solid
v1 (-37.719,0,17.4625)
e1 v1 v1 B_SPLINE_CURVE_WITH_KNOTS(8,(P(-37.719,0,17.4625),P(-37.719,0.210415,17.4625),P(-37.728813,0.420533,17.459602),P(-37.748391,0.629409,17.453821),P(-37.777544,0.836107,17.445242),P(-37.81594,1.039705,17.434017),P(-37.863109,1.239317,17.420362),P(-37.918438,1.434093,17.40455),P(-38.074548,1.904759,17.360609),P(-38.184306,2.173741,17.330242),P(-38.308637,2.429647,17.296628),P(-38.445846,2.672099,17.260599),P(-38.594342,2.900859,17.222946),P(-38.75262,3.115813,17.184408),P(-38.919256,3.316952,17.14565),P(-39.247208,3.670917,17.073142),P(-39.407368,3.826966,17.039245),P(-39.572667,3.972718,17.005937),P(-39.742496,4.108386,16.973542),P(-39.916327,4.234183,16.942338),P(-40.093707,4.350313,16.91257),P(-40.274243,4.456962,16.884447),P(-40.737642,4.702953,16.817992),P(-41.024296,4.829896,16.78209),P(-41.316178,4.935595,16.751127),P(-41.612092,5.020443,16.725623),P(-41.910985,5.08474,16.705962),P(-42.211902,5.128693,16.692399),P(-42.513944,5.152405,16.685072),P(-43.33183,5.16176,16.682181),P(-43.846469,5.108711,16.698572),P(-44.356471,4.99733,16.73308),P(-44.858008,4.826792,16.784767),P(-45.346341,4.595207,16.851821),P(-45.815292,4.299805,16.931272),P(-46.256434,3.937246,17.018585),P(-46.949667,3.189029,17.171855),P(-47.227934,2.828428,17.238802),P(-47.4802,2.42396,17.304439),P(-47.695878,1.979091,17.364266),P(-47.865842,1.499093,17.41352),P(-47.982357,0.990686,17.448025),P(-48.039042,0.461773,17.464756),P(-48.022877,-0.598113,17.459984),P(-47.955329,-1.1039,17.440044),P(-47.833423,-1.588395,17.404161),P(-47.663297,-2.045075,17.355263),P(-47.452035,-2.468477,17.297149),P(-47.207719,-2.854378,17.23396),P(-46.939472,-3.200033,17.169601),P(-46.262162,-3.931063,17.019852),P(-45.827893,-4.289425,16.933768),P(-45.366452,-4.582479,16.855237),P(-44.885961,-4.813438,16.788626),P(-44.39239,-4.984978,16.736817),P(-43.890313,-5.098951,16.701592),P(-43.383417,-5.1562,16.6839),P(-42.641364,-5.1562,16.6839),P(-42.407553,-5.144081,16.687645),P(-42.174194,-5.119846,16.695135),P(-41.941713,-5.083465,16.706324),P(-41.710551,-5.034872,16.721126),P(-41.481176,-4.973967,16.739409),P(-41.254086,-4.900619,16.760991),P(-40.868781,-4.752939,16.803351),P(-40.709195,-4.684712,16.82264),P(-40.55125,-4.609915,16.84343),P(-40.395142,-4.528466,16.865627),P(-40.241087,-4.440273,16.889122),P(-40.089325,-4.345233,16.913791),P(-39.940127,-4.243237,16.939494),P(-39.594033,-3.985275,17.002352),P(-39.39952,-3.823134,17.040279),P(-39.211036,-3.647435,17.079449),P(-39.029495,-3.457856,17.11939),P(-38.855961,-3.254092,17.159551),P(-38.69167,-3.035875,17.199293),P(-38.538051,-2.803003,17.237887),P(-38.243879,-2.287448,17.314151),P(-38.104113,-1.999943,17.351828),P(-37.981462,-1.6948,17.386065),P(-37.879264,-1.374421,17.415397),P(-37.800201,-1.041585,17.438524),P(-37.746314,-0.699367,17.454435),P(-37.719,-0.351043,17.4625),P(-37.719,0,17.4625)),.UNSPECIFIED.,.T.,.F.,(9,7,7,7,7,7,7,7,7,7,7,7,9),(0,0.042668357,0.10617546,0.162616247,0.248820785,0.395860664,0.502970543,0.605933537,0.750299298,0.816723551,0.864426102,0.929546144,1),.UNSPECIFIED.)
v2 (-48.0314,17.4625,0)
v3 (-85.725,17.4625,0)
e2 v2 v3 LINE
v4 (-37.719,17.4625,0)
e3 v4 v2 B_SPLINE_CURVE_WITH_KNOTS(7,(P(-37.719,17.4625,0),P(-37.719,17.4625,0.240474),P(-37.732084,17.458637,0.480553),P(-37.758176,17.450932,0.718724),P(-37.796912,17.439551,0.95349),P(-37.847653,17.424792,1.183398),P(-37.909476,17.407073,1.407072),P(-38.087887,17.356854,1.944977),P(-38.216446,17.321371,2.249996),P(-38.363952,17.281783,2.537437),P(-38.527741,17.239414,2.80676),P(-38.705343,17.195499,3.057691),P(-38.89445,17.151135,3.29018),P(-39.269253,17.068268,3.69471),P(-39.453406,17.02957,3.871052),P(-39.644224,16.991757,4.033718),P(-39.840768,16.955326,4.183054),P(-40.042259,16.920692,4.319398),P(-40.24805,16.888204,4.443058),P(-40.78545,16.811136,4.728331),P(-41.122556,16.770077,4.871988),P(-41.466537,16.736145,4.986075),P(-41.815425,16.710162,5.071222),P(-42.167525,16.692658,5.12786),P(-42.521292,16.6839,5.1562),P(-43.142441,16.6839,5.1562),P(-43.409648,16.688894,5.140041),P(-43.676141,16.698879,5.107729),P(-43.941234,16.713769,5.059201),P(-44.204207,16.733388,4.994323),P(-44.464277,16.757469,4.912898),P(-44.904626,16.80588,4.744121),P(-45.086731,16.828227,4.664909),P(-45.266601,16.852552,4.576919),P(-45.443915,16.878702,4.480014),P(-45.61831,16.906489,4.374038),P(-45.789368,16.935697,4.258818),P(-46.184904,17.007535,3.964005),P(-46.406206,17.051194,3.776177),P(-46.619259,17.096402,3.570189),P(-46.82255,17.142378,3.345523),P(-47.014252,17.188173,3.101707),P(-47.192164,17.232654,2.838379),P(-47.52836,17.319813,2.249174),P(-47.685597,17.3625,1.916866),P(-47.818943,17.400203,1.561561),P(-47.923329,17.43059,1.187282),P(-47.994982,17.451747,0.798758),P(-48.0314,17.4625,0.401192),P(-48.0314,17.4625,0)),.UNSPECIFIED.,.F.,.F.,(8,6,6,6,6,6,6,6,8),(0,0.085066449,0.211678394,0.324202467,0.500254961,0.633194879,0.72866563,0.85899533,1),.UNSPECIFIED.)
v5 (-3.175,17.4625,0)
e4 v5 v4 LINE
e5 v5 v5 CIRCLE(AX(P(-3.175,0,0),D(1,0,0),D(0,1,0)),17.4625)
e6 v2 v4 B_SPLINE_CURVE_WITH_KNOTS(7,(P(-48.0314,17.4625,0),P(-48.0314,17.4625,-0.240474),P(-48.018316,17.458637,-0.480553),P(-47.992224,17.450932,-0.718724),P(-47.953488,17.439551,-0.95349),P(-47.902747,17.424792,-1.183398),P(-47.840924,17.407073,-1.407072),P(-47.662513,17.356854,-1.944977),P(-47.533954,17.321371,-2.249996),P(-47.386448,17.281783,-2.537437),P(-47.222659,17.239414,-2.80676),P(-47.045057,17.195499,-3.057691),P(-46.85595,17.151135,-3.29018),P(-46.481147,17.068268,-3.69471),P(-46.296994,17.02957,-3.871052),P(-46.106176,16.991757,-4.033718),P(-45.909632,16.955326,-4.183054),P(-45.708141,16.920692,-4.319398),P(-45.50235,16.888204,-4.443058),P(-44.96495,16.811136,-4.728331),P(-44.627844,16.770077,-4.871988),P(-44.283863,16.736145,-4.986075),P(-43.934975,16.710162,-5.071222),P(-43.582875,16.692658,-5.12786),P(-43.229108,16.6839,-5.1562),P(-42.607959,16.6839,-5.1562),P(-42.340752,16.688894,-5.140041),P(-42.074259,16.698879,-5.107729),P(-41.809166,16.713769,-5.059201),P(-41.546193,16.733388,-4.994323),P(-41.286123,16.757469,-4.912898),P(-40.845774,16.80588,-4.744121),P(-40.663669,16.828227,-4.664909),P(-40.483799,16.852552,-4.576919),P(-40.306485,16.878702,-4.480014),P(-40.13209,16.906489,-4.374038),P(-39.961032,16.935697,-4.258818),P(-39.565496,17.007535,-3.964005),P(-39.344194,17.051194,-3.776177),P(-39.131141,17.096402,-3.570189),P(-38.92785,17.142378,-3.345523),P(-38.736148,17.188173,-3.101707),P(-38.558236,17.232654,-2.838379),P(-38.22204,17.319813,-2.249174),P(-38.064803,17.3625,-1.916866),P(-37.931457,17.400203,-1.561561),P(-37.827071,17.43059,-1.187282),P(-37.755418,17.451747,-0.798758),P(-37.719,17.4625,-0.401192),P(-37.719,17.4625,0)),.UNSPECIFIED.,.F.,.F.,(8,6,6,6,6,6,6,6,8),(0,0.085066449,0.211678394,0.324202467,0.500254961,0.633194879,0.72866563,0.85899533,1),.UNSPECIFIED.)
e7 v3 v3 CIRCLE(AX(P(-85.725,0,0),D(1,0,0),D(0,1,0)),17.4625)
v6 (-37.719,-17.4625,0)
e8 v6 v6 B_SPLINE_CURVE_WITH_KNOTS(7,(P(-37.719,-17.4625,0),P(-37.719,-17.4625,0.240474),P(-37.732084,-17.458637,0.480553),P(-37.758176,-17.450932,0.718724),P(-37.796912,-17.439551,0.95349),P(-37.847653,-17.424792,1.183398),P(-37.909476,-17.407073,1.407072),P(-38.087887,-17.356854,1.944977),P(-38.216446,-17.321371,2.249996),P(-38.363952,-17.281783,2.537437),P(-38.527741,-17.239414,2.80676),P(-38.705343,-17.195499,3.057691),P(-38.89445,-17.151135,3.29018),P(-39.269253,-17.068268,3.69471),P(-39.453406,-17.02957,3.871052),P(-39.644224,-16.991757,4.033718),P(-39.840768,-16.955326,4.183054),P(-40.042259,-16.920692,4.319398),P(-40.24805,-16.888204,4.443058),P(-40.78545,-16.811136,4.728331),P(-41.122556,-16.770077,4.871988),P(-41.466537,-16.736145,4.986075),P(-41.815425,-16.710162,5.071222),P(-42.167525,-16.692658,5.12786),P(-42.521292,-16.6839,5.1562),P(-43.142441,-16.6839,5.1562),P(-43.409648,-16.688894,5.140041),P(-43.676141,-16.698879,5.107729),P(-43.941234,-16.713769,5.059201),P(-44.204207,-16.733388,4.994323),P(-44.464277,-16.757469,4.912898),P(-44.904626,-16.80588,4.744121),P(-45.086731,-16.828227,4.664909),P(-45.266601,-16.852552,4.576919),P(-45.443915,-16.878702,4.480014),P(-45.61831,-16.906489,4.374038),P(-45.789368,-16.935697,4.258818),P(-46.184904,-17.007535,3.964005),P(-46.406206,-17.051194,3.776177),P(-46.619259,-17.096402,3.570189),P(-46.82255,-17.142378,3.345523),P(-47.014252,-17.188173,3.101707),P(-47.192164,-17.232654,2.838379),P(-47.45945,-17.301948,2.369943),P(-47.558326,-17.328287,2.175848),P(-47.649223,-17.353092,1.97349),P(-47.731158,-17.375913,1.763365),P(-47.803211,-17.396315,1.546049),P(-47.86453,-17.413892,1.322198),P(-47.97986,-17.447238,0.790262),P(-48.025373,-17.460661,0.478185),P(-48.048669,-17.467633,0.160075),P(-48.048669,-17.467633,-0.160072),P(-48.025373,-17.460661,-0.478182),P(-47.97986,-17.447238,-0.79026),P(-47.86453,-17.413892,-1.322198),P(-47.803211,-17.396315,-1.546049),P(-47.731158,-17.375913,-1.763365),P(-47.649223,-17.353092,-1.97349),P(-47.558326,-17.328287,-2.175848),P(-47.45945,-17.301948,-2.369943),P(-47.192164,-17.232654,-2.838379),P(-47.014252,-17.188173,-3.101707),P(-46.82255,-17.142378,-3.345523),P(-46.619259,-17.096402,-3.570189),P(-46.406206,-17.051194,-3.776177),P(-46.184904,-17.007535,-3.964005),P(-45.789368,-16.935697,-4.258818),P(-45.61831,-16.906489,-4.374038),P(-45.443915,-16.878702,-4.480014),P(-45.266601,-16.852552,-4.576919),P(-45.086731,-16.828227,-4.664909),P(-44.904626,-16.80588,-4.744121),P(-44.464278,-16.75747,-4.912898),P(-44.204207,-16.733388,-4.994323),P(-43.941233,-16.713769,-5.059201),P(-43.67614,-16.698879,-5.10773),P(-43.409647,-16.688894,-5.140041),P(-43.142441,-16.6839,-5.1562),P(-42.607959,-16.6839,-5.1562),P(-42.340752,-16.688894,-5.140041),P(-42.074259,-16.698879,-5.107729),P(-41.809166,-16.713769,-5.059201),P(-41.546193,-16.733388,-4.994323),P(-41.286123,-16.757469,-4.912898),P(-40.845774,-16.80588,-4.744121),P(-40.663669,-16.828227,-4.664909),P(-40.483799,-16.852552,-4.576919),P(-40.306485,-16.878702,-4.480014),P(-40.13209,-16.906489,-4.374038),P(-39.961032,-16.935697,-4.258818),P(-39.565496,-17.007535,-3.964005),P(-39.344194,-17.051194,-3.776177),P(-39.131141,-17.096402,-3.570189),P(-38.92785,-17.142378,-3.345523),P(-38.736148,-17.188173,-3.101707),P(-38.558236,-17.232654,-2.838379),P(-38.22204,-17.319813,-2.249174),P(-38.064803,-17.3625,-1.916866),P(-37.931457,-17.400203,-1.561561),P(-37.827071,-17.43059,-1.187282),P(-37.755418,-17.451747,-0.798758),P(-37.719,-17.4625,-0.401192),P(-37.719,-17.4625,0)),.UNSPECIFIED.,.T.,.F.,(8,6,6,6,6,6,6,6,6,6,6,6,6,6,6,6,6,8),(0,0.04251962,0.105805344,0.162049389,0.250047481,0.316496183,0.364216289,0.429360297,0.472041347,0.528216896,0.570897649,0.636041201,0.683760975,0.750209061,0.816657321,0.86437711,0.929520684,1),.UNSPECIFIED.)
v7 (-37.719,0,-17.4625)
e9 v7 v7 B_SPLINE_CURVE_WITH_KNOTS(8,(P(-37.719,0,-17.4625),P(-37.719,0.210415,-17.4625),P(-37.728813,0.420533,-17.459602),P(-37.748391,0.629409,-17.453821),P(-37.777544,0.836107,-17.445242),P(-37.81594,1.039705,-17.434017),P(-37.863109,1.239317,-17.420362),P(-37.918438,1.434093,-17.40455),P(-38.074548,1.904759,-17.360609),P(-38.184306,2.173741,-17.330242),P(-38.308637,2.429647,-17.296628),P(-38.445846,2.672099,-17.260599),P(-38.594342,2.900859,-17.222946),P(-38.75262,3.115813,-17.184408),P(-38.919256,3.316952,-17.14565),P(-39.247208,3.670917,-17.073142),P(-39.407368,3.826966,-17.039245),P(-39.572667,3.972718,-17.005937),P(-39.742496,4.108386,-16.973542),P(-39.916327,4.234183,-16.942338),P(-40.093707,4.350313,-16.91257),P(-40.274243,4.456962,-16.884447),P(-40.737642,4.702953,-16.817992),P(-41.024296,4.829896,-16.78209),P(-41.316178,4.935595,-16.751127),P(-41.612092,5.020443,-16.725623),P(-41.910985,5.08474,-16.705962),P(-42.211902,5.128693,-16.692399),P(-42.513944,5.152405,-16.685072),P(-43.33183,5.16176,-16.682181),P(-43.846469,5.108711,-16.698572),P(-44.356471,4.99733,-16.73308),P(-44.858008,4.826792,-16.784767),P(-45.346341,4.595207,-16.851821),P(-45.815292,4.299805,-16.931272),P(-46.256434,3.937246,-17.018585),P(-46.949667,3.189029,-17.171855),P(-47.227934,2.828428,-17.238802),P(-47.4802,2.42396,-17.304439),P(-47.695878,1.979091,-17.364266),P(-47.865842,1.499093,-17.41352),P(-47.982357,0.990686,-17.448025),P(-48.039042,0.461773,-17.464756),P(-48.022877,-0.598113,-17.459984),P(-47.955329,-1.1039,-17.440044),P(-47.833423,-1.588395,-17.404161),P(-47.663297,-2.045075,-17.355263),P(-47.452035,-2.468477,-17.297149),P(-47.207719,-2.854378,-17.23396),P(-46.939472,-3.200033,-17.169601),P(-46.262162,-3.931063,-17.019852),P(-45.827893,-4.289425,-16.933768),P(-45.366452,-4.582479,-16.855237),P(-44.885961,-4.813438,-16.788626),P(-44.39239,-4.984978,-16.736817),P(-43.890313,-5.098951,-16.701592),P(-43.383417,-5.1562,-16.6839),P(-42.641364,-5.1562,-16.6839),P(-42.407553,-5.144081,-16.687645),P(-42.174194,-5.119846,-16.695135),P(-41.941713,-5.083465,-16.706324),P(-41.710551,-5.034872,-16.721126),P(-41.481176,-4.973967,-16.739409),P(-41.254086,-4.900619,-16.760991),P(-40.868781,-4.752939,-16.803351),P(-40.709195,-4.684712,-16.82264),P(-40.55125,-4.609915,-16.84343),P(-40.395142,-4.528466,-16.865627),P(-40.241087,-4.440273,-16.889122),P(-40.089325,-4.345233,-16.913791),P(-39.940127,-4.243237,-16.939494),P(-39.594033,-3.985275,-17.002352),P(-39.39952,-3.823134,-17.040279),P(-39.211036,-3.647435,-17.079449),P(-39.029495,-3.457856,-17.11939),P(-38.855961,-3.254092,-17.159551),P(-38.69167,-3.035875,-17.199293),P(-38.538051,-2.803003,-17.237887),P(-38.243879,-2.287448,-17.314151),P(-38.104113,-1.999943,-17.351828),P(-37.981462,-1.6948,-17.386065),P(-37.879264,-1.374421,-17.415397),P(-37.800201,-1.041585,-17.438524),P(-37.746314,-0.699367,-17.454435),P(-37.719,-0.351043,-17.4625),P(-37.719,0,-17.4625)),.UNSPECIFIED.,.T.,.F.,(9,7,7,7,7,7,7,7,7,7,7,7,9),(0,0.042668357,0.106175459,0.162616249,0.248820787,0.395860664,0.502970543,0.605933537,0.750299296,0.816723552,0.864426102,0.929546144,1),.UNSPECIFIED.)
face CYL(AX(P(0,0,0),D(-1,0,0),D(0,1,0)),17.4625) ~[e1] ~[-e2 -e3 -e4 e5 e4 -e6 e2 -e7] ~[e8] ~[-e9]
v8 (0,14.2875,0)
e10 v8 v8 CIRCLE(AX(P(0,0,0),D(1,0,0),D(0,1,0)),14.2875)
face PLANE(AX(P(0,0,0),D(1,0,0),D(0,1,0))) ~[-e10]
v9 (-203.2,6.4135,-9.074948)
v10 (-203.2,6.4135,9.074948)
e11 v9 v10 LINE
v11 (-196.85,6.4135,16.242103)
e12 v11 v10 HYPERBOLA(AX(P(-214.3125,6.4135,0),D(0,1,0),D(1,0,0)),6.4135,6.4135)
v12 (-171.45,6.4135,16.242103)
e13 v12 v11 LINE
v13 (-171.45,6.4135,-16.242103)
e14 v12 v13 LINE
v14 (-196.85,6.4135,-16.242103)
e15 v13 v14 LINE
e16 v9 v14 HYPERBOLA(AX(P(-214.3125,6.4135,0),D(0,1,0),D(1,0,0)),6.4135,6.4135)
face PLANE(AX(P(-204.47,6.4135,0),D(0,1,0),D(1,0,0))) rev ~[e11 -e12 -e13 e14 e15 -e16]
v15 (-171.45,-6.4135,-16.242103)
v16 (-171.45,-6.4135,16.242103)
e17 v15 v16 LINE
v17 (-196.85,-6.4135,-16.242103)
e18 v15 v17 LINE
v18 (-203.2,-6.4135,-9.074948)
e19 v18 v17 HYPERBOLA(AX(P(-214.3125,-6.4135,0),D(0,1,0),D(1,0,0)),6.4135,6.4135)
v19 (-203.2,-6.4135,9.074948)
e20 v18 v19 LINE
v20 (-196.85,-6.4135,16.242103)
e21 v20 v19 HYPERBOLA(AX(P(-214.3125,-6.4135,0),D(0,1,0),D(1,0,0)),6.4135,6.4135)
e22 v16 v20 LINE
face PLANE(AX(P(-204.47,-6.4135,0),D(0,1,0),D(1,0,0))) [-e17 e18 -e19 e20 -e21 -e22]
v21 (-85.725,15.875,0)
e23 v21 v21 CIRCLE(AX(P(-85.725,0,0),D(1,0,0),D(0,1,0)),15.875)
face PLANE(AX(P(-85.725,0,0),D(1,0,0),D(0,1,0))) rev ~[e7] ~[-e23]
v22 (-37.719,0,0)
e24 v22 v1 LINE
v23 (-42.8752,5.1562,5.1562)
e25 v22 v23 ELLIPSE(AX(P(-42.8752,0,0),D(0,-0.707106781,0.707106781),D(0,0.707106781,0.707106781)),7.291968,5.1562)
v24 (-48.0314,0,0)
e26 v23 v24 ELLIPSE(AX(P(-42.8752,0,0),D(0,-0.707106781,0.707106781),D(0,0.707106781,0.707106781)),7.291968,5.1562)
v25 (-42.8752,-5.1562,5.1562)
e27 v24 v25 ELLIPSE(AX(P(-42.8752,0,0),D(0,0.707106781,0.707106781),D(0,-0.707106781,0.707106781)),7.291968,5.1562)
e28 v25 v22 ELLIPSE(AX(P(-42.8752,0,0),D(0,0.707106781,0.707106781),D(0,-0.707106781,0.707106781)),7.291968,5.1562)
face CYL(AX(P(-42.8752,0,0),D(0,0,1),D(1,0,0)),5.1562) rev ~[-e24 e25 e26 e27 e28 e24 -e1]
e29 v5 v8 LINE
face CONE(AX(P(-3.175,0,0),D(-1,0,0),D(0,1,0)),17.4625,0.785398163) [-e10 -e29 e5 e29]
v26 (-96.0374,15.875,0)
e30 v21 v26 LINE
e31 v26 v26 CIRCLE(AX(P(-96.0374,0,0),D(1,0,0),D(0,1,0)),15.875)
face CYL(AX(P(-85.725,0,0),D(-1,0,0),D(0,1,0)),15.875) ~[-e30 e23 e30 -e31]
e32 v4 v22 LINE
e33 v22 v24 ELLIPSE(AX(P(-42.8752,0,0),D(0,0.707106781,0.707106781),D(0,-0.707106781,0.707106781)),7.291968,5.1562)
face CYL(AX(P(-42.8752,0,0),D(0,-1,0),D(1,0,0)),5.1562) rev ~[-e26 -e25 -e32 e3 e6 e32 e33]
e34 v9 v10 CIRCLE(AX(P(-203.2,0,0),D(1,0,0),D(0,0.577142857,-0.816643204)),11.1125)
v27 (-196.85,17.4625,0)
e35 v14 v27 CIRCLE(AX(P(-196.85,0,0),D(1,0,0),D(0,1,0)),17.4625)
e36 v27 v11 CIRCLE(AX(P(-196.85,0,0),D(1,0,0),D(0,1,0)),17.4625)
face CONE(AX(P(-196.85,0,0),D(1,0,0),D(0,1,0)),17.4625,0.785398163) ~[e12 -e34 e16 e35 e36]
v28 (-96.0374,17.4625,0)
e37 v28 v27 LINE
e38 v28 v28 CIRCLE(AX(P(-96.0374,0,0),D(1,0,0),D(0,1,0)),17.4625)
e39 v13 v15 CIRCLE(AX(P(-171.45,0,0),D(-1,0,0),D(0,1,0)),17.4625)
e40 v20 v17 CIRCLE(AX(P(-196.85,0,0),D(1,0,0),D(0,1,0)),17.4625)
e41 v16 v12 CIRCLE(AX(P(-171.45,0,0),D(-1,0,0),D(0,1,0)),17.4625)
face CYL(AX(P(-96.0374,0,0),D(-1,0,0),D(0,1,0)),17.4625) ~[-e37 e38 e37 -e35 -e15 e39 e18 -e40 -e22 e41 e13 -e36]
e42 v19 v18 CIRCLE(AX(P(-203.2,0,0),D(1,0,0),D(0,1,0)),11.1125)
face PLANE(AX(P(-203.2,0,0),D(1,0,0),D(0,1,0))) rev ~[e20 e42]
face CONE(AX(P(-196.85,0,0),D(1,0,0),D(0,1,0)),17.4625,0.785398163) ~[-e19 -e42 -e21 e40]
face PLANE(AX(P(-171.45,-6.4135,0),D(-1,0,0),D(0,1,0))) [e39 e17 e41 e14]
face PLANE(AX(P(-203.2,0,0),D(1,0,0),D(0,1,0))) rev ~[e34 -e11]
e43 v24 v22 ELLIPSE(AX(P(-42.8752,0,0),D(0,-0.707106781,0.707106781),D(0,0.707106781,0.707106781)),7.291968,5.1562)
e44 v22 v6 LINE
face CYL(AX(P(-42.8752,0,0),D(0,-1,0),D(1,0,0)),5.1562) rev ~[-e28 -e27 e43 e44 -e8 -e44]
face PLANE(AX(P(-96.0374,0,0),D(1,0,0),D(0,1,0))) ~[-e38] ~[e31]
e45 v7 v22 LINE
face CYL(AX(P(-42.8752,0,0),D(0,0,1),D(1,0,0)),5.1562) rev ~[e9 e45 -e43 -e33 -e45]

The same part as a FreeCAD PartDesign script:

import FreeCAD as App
import Part
import Sketcher
from FreeCAD import Vector
Q = App.Units.Quantity


def edges_at(feature, points):
    """Names of the edges that pass closest to the given points."""
    edges = feature.Shape.Edges
    near = lambda p: min(range(len(edges)), key=lambda i: edges[i].distToShape(Part.Vertex(*p))[0])
    return sorted({f"Edge{near(p) + 1}" for p in points})


def add_polygon(sketch, points):
    """Adds a closed chain of lines whose ends are joined by coincident constraints."""
    first, n = sketch.GeometryCount, len(points)
    for a, b in zip(points, points[1:] + points[:1]):
        sketch.addGeometry(Part.LineSegment(App.Vector(*a, 0), App.Vector(*b, 0)), False)
    for i in range(n):
        sketch.addConstraint(Sketcher.Constraint("Coincident", first + i, 2, first + (i + 1) % n, 1))

doc = App.newDocument("Part")
params = doc.addObject("Spreadsheet::Sheet", "Params")
for row, (alias, value) in enumerate([
    ("sketch1_width", "8 in"),
    ("sketch1_width2", "3.375 in"),
    ("sketch1_width3", "0.406 in"),
    ("sketch1_height", "0.6875 in"),
    ("sketch1_height2", "0.0625 in"),
    ("revolution_angle", "360 deg"),
    ("chamfer_size", "0.25 in"),
    ("chamfer2_size", "0.125 in"),
    ("sketch2_diameter", "0.406 in"),
    ("sketch2_width", "1.3 in"),
    ("sketch2_height", "0.505 in"),
    ("pocket1_length", "1.5 in"),
    ("sketch3_diameter", "0.406 in"),
    ("pocket2_length", "1.5 in"),
], start=1):
    params.set(f"A{row}", alias)
    params.set(f"B{row}", "=" + value)
    params.setAlias(f"B{row}", alias)

body = doc.addObject("PartDesign::Body", "Body")

# Sketch on XY plane
sketch1 = body.newObject("Sketcher::SketchObject", "Sketch")
sketch1.AttachmentSupport = (doc.getObject("XY_Plane"), [""])
sketch1.MapMode = "FlatFace"
add_polygon(sketch1, [(-203.2, 0), (0, 0), (0, 17.5), (-85.7, 17.5), (-85.7, 15.9), (-96, 15.9), (-96, 17.5), (-203.2, 17.5)])  # lines 0-7
sketch1.addConstraint(Sketcher.Constraint("Horizontal", 0))
sketch1.addConstraint(Sketcher.Constraint("Vertical", 1))
sketch1.addConstraint(Sketcher.Constraint("Horizontal", 2))
sketch1.addConstraint(Sketcher.Constraint("Vertical", 3))
sketch1.addConstraint(Sketcher.Constraint("Horizontal", 4))
sketch1.addConstraint(Sketcher.Constraint("Vertical", 5))
sketch1.addConstraint(Sketcher.Constraint("Horizontal", 6))
sketch1.addConstraint(Sketcher.Constraint("Vertical", 7))
sketch1.addConstraint(Sketcher.Constraint("Coincident", 0, 2, -1, 1))
sketch1.addConstraint(Sketcher.Constraint("Horizontal", 2, 2, 5, 2))
sketch1.addConstraint(Sketcher.Constraint("DistanceX", 0, 1, 0, 2, Q("8 in")))
sketch1.addConstraint(Sketcher.Constraint("DistanceX", 2, 2, 2, 1, Q("3.375 in")))
sketch1.addConstraint(Sketcher.Constraint("DistanceX", 4, 2, 4, 1, Q("0.406 in")))
sketch1.addConstraint(Sketcher.Constraint("DistanceY", 1, 1, 1, 2, Q("0.6875 in")))
sketch1.addConstraint(Sketcher.Constraint("DistanceY", 3, 2, 3, 1, Q("0.0625 in")))
sketch1.setExpression("Constraints[18]", "Params.sketch1_width")
sketch1.setExpression("Constraints[19]", "Params.sketch1_width2")
sketch1.setExpression("Constraints[20]", "Params.sketch1_width3")
sketch1.setExpression("Constraints[21]", "Params.sketch1_height")
sketch1.setExpression("Constraints[22]", "Params.sketch1_height2")
revolution = body.newObject("PartDesign::Revolution", "Revolution")
revolution.Profile = sketch1
revolution.ReferenceAxis = (sketch1, ["H_Axis"])
revolution.setExpression("Angle", "Params.revolution_angle")
doc.recompute()

chamfer = body.newObject("PartDesign::Chamfer", "Chamfer")
chamfer.Base = (revolution, edges_at(revolution, [(-203.2, -17.462, 0)]))
chamfer.setExpression("Size", "Params.chamfer_size")
doc.recompute()

chamfer2 = body.newObject("PartDesign::Chamfer", "Chamfer001")
chamfer2.Base = (chamfer, edges_at(chamfer, [(0, -17.462, 0)]))
chamfer2.setExpression("Size", "Params.chamfer2_size")

# Sketch on XY plane
sketch2 = body.newObject("Sketcher::SketchObject", "Sketch001")
sketch2.AttachmentSupport = (doc.getObject("XY_Plane"), [""])
sketch2.MapMode = "FlatFace"
add_polygon(sketch2, [(-204, 6), (-204, -6), (-171, -6), (-171, 6)])  # lines 0-3
sketch2.addGeometry(Part.Circle(Vector(-43, 0, 0), Vector(0, 0, 1), 5), False)  # 4
sketch2.addConstraint(Sketcher.Constraint("Vertical", 0))
sketch2.addConstraint(Sketcher.Constraint("Horizontal", 1))
sketch2.addConstraint(Sketcher.Constraint("Vertical", 2))
sketch2.addConstraint(Sketcher.Constraint("Horizontal", 3))
sketch2.addConstraint(Sketcher.Constraint("PointOnObject", 4, 3, -1))
sketch2.addConstraint(Sketcher.Constraint("Diameter", 4, Q("0.406 in")))
sketch2.addConstraint(Sketcher.Constraint("DistanceX", 1, 1, 1, 2, Q("1.3 in")))
sketch2.addConstraint(Sketcher.Constraint("DistanceY", 0, 2, 0, 1, Q("0.505 in")))
sketch2.addConstraint(Sketcher.Constraint("DistanceX", 0, 2, -1, 1, Q("8.05 in")))
sketch2.addConstraint(Sketcher.Constraint("DistanceX", 4, 3, -1, 1, Q("1.688 in")))
sketch2.addConstraint(Sketcher.Constraint("DistanceY", 0, 2, -1, 1, Q("0.2525 in")))
sketch2.setExpression("Constraints[9]", "Params.sketch2_diameter")
sketch2.setExpression("Constraints[10]", "Params.sketch2_width")
sketch2.setExpression("Constraints[11]", "Params.sketch2_height")
pocket1 = body.newObject("PartDesign::Pocket", "Pocket")
pocket1.Profile = sketch2
pocket1.setExpression("Length", "Params.pocket1_length")
pocket1.Midplane = True

# Sketch on XZ plane
sketch3 = body.newObject("Sketcher::SketchObject", "Sketch002")
sketch3.AttachmentSupport = (doc.getObject("XZ_Plane"), [""])
sketch3.MapMode = "FlatFace"
sketch3.addGeometry(Part.Circle(Vector(-43, 0, 0), Vector(0, 0, 1), 5), False)
sketch3.addConstraint(Sketcher.Constraint("PointOnObject", 0, 3, -1))
sketch3.addConstraint(Sketcher.Constraint("Diameter", 0, Q("0.406 in")))
sketch3.addConstraint(Sketcher.Constraint("DistanceX", 0, 3, -1, 1, Q("1.688 in")))
sketch3.setExpression("Constraints[1]", "Params.sketch3_diameter")
pocket2 = body.newObject("PartDesign::Pocket", "Pocket001")
pocket2.Profile = sketch3
pocket2.setExpression("Length", "Params.pocket2_length")
pocket2.Midplane = True

doc.recompute()
